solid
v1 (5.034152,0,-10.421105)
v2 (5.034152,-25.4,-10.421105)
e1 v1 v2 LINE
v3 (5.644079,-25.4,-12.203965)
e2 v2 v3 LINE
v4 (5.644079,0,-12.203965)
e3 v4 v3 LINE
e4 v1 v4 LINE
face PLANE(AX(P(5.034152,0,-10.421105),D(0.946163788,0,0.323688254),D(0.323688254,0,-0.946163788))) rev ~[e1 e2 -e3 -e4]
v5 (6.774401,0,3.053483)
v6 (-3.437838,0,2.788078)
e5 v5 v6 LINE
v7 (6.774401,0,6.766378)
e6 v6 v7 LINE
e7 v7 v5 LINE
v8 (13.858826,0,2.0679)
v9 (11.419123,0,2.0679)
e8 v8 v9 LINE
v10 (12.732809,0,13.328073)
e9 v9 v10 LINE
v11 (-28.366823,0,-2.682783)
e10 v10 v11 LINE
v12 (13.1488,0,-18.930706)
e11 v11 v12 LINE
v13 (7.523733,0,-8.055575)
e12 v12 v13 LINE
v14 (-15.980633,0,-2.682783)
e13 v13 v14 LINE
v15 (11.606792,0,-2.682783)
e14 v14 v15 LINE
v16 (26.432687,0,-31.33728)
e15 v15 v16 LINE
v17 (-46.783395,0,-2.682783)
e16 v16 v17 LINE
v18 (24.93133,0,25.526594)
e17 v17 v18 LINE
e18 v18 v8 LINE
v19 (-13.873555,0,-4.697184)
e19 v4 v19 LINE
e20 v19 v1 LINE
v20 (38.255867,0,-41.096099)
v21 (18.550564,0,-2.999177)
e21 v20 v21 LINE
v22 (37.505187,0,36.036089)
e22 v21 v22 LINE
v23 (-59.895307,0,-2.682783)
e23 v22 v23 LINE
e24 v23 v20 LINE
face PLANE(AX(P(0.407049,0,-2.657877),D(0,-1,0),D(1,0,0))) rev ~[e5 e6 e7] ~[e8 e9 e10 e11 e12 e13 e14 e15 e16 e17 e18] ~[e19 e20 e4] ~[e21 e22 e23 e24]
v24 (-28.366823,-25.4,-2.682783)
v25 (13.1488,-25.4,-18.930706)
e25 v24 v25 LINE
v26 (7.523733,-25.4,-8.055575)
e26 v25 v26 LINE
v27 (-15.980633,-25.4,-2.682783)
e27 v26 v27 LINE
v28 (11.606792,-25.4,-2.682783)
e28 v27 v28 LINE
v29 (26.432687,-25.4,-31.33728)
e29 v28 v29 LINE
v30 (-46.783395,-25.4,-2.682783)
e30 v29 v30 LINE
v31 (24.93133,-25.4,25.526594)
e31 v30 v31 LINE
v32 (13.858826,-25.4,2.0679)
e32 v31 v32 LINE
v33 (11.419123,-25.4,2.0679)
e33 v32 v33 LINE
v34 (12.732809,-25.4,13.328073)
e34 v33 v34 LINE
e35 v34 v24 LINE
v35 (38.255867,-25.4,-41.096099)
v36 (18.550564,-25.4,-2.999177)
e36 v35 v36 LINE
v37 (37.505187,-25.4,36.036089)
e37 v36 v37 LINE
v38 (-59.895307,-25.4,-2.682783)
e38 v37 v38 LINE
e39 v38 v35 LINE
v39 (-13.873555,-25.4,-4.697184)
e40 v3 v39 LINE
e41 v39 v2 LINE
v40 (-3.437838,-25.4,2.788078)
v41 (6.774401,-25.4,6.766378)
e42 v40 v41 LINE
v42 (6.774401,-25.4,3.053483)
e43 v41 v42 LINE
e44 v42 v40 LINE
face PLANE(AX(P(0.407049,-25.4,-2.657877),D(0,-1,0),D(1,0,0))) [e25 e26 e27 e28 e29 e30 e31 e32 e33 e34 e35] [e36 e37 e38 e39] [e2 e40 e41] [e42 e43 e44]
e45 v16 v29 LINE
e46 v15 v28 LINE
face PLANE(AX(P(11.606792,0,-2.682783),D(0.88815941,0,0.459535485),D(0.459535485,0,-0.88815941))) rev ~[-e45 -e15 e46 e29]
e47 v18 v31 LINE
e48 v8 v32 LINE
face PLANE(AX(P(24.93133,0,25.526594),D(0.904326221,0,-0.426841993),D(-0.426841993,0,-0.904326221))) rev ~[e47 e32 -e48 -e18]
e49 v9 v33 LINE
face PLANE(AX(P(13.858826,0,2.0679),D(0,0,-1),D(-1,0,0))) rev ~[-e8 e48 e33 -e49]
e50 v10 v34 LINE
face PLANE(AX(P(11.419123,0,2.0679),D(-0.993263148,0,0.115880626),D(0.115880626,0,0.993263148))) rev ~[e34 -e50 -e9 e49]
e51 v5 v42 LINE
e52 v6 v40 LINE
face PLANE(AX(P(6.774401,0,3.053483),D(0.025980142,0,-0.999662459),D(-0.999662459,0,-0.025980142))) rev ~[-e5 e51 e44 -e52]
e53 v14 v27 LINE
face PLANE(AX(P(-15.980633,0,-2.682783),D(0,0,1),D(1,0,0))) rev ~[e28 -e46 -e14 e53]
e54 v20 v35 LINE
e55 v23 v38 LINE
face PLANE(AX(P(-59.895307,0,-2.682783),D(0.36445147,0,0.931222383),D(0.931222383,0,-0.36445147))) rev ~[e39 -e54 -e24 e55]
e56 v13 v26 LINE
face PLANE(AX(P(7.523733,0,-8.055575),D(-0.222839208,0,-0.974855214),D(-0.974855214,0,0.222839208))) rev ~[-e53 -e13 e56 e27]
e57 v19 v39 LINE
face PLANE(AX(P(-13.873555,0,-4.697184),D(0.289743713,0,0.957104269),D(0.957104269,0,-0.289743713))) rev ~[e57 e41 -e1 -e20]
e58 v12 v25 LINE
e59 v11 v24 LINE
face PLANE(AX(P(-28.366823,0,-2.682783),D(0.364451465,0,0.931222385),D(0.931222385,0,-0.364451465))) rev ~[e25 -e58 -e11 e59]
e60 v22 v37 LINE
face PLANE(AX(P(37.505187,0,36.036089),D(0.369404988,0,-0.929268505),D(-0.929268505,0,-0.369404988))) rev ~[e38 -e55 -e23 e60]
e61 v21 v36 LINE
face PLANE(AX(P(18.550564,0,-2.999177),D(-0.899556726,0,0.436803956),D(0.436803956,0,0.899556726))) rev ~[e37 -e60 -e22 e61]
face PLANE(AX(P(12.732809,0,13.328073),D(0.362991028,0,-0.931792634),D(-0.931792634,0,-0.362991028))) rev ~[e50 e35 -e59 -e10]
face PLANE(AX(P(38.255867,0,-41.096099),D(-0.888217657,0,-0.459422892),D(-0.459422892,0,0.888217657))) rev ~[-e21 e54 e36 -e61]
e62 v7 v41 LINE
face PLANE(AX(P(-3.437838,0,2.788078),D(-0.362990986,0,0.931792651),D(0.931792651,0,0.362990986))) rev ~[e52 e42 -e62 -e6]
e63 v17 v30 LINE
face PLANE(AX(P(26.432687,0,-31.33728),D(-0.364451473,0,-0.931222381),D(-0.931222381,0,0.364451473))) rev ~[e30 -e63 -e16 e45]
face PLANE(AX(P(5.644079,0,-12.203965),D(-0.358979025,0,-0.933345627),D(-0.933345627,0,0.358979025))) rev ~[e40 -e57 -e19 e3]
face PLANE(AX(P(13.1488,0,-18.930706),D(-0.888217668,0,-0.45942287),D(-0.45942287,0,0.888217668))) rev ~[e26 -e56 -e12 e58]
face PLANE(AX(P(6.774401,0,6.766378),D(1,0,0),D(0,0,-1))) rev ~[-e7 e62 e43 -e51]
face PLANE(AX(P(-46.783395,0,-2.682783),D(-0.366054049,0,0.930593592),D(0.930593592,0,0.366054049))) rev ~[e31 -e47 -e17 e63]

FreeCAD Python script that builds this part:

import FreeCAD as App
import Part
import Sketcher
from FreeCAD import Vector
Q = App.Units.Quantity

doc = App.newDocument("Part")
params = doc.addObject("Spreadsheet::Sheet", "Params")
for row, (alias, value) in enumerate([
    ("pad1_length", "1 in"),
], start=1):
    params.set(f"A{row}", alias)
    params.set(f"B{row}", "=" + value)
    params.setAlias(f"B{row}", alias)

body = doc.addObject("PartDesign::Body", "Body")

# Sketch on XZ plane
sketch1 = body.newObject("Sketcher::SketchObject", "Sketch")
sketch1.AttachmentSupport = (doc.getObject("XZ_Plane"), [""])
sketch1.MapMode = "FlatFace"
sketch1.addGeometry([
    Part.LineSegment(Vector(37.505187, 36.036089, 0), Vector(-59.895307, -2.682783, 0)),  # 0
    Part.LineSegment(Vector(-59.895307, -2.682783, 0), Vector(38.255867, -41.096099, 0)),  # 1
    Part.LineSegment(Vector(38.255867, -41.096099, 0), Vector(18.550564, -2.999177, 0)),  # 2
    Part.LineSegment(Vector(18.550564, -2.999177, 0), Vector(37.505187, 36.036089, 0)),  # 3
    Part.LineSegment(Vector(5.034152, -10.421105, 0), Vector(5.644079, -12.203965, 0)),  # 4
    Part.LineSegment(Vector(5.644079, -12.203965, 0), Vector(-13.873555, -4.697184, 0)),  # 5
    Part.LineSegment(Vector(-13.873555, -4.697184, 0), Vector(5.034152, -10.421105, 0)),  # 6
    Part.LineSegment(Vector(-15.980633, -2.682783, 0), Vector(11.606792, -2.682783, 0)),  # 7
    Part.LineSegment(Vector(11.606792, -2.682783, 0), Vector(26.432687, -31.33728, 0)),  # 8
    Part.LineSegment(Vector(26.432687, -31.33728, 0), Vector(-46.783395, -2.682783, 0)),  # 9
    Part.LineSegment(Vector(-46.783395, -2.682783, 0), Vector(24.93133, 25.526594, 0)),  # 10
    Part.LineSegment(Vector(24.93133, 25.526594, 0), Vector(13.858826, 2.0679, 0)),  # 11
    Part.LineSegment(Vector(13.858826, 2.0679, 0), Vector(11.419123, 2.0679, 0)),  # 12
    Part.LineSegment(Vector(11.419123, 2.0679, 0), Vector(12.732809, 13.328073, 0)),  # 13
    Part.LineSegment(Vector(12.732809, 13.328073, 0), Vector(-28.366823, -2.682783, 0)),  # 14
    Part.LineSegment(Vector(-28.366823, -2.682783, 0), Vector(13.1488, -18.930706, 0)),  # 15
    Part.LineSegment(Vector(13.1488, -18.930706, 0), Vector(7.523733, -8.055575, 0)),  # 16
    Part.LineSegment(Vector(7.523733, -8.055575, 0), Vector(-15.980633, -2.682783, 0)),  # 17
    Part.LineSegment(Vector(6.774401, 6.766378, 0), Vector(6.774401, 3.053483, 0)),  # 18
    Part.LineSegment(Vector(6.774401, 3.053483, 0), Vector(-3.437838, 2.788078, 0)),  # 19
    Part.LineSegment(Vector(-3.437838, 2.788078, 0), Vector(6.774401, 6.766378, 0)),  # 20
], False)
sketch1.addConstraint([
    Sketcher.Constraint("Coincident", 0, 2, 1, 1),
    Sketcher.Constraint("Coincident", 1, 2, 2, 1),
    Sketcher.Constraint("Coincident", 2, 2, 3, 1),
    Sketcher.Constraint("Coincident", 3, 2, 0, 1),
    Sketcher.Constraint("Coincident", 4, 2, 5, 1),
    Sketcher.Constraint("Coincident", 5, 2, 6, 1),
    Sketcher.Constraint("Coincident", 6, 2, 4, 1),
    Sketcher.Constraint("Coincident", 7, 2, 8, 1),
    Sketcher.Constraint("Coincident", 8, 2, 9, 1),
    Sketcher.Constraint("Coincident", 9, 2, 10, 1),
    Sketcher.Constraint("Coincident", 10, 2, 11, 1),
    Sketcher.Constraint("Coincident", 11, 2, 12, 1),
    Sketcher.Constraint("Coincident", 12, 2, 13, 1),
    Sketcher.Constraint("Coincident", 13, 2, 14, 1),
    Sketcher.Constraint("Coincident", 14, 2, 15, 1),
    Sketcher.Constraint("Coincident", 15, 2, 16, 1),
    Sketcher.Constraint("Coincident", 16, 2, 17, 1),
    Sketcher.Constraint("Coincident", 17, 2, 7, 1),
    Sketcher.Constraint("Coincident", 18, 2, 19, 1),
    Sketcher.Constraint("Coincident", 19, 2, 20, 1),
    Sketcher.Constraint("Coincident", 20, 2, 18, 1),
    Sketcher.Constraint("Horizontal", 7),
    Sketcher.Constraint("Horizontal", 12),
    Sketcher.Constraint("Vertical", 18),
    Sketcher.Constraint("Parallel", 1, 9),
    Sketcher.Constraint("Parallel", 9, 15),
    Sketcher.Constraint("Parallel", 2, 16),
    Sketcher.Constraint("Parallel", 14, 20),
    Sketcher.Constraint("Horizontal", 0, 2, 7, 2),
    Sketcher.Constraint("Horizontal", 7, 2, 9, 2),
    Sketcher.Constraint("Horizontal", 9, 2, 14, 2),
    Sketcher.Constraint("DistanceY", 1, 2, -1, 1, Q("41.096099 mm")),
    Sketcher.Constraint("DistanceY", -1, 1, 11, 2, Q("2.0679 mm")),
    Sketcher.Constraint("DistanceX", -1, 1, 15, 2, Q("13.1488 mm")),
    Sketcher.Constraint("DistanceX", -1, 1, 18, 2, Q("6.774401 mm")),
    Sketcher.Constraint("DistanceY", 5, 2, 0, 2, Q("2.014401 mm")),
    Sketcher.Constraint("DistanceY", 6, 2, 10, 2, Q("35.947699 mm")),
    Sketcher.Constraint("DistanceY", 15, 2, 6, 2, Q("8.509601 mm")),
    Sketcher.Constraint("Distance", 1, Q("105.40036 mm")),
    Sketcher.Constraint("Distance", 3, Q("43.39389 mm")),
    Sketcher.Constraint("Distance", 10, Q("77.06342 mm")),
    Sketcher.Constraint("Distance", 11, Q("25.940522 mm")),
    Sketcher.Constraint("Distance", 14, Q("44.108131 mm")),
    Sketcher.Constraint("DistanceX", 7, 1, 7, 2, Q("27.587425 mm")),
    Sketcher.Constraint("DistanceX", 12, 2, 12, 1, Q("2.439703 mm")),
    Sketcher.Constraint("DistanceY", 18, 2, 18, 1, Q("3.712895 mm")),
    Sketcher.Constraint("DistanceY", -1, 1, 3, 2, Q("36.036089 mm")),
    Sketcher.Constraint("DistanceX", -1, 1, 4, 2, Q("5.644079 mm")),
    Sketcher.Constraint("DistanceX", -1, 1, 6, 2, Q("5.034152 mm")),
    Sketcher.Constraint("DistanceY", 8, 2, -1, 1, Q("31.33728 mm")),
    Sketcher.Constraint("DistanceX", -1, 1, 10, 2, Q("24.93133 mm")),
    Sketcher.Constraint("DistanceX", -1, 1, 13, 2, Q("12.732809 mm")),
    Sketcher.Constraint("DistanceX", 19, 2, -1, 1, Q("3.437838 mm")),
    Sketcher.Constraint("DistanceY", -1, 1, 19, 2, Q("2.788078 mm")),
    Sketcher.Constraint("DistanceX", 0, 2, 2, 2, Q("78.445871 mm")),
    Sketcher.Constraint("DistanceX", 3, 2, 1, 2, Q("0.75068 mm")),
    Sketcher.Constraint("DistanceY", 0, 2, 3, 2, Q("38.718872 mm")),
    Sketcher.Constraint("DistanceY", 4, 2, 2, 2, Q("9.204788 mm")),
    Sketcher.Constraint("DistanceX", 4, 2, 1, 2, Q("32.611788 mm")),
    Sketcher.Constraint("DistanceX", 5, 2, 2, 2, Q("32.424119 mm")),
    Sketcher.Constraint("DistanceY", 4, 2, 6, 2, Q("1.78286 mm")),
    Sketcher.Constraint("DistanceX", 6, 2, 7, 2, Q("6.57264 mm")),
    Sketcher.Constraint("DistanceX", 6, 2, 16, 2, Q("2.489581 mm")),
])
pad1 = body.newObject("PartDesign::Pad", "Pad")
pad1.Profile = sketch1
pad1.setExpression("Length", "Params.pad1_length")

doc.recompute()
